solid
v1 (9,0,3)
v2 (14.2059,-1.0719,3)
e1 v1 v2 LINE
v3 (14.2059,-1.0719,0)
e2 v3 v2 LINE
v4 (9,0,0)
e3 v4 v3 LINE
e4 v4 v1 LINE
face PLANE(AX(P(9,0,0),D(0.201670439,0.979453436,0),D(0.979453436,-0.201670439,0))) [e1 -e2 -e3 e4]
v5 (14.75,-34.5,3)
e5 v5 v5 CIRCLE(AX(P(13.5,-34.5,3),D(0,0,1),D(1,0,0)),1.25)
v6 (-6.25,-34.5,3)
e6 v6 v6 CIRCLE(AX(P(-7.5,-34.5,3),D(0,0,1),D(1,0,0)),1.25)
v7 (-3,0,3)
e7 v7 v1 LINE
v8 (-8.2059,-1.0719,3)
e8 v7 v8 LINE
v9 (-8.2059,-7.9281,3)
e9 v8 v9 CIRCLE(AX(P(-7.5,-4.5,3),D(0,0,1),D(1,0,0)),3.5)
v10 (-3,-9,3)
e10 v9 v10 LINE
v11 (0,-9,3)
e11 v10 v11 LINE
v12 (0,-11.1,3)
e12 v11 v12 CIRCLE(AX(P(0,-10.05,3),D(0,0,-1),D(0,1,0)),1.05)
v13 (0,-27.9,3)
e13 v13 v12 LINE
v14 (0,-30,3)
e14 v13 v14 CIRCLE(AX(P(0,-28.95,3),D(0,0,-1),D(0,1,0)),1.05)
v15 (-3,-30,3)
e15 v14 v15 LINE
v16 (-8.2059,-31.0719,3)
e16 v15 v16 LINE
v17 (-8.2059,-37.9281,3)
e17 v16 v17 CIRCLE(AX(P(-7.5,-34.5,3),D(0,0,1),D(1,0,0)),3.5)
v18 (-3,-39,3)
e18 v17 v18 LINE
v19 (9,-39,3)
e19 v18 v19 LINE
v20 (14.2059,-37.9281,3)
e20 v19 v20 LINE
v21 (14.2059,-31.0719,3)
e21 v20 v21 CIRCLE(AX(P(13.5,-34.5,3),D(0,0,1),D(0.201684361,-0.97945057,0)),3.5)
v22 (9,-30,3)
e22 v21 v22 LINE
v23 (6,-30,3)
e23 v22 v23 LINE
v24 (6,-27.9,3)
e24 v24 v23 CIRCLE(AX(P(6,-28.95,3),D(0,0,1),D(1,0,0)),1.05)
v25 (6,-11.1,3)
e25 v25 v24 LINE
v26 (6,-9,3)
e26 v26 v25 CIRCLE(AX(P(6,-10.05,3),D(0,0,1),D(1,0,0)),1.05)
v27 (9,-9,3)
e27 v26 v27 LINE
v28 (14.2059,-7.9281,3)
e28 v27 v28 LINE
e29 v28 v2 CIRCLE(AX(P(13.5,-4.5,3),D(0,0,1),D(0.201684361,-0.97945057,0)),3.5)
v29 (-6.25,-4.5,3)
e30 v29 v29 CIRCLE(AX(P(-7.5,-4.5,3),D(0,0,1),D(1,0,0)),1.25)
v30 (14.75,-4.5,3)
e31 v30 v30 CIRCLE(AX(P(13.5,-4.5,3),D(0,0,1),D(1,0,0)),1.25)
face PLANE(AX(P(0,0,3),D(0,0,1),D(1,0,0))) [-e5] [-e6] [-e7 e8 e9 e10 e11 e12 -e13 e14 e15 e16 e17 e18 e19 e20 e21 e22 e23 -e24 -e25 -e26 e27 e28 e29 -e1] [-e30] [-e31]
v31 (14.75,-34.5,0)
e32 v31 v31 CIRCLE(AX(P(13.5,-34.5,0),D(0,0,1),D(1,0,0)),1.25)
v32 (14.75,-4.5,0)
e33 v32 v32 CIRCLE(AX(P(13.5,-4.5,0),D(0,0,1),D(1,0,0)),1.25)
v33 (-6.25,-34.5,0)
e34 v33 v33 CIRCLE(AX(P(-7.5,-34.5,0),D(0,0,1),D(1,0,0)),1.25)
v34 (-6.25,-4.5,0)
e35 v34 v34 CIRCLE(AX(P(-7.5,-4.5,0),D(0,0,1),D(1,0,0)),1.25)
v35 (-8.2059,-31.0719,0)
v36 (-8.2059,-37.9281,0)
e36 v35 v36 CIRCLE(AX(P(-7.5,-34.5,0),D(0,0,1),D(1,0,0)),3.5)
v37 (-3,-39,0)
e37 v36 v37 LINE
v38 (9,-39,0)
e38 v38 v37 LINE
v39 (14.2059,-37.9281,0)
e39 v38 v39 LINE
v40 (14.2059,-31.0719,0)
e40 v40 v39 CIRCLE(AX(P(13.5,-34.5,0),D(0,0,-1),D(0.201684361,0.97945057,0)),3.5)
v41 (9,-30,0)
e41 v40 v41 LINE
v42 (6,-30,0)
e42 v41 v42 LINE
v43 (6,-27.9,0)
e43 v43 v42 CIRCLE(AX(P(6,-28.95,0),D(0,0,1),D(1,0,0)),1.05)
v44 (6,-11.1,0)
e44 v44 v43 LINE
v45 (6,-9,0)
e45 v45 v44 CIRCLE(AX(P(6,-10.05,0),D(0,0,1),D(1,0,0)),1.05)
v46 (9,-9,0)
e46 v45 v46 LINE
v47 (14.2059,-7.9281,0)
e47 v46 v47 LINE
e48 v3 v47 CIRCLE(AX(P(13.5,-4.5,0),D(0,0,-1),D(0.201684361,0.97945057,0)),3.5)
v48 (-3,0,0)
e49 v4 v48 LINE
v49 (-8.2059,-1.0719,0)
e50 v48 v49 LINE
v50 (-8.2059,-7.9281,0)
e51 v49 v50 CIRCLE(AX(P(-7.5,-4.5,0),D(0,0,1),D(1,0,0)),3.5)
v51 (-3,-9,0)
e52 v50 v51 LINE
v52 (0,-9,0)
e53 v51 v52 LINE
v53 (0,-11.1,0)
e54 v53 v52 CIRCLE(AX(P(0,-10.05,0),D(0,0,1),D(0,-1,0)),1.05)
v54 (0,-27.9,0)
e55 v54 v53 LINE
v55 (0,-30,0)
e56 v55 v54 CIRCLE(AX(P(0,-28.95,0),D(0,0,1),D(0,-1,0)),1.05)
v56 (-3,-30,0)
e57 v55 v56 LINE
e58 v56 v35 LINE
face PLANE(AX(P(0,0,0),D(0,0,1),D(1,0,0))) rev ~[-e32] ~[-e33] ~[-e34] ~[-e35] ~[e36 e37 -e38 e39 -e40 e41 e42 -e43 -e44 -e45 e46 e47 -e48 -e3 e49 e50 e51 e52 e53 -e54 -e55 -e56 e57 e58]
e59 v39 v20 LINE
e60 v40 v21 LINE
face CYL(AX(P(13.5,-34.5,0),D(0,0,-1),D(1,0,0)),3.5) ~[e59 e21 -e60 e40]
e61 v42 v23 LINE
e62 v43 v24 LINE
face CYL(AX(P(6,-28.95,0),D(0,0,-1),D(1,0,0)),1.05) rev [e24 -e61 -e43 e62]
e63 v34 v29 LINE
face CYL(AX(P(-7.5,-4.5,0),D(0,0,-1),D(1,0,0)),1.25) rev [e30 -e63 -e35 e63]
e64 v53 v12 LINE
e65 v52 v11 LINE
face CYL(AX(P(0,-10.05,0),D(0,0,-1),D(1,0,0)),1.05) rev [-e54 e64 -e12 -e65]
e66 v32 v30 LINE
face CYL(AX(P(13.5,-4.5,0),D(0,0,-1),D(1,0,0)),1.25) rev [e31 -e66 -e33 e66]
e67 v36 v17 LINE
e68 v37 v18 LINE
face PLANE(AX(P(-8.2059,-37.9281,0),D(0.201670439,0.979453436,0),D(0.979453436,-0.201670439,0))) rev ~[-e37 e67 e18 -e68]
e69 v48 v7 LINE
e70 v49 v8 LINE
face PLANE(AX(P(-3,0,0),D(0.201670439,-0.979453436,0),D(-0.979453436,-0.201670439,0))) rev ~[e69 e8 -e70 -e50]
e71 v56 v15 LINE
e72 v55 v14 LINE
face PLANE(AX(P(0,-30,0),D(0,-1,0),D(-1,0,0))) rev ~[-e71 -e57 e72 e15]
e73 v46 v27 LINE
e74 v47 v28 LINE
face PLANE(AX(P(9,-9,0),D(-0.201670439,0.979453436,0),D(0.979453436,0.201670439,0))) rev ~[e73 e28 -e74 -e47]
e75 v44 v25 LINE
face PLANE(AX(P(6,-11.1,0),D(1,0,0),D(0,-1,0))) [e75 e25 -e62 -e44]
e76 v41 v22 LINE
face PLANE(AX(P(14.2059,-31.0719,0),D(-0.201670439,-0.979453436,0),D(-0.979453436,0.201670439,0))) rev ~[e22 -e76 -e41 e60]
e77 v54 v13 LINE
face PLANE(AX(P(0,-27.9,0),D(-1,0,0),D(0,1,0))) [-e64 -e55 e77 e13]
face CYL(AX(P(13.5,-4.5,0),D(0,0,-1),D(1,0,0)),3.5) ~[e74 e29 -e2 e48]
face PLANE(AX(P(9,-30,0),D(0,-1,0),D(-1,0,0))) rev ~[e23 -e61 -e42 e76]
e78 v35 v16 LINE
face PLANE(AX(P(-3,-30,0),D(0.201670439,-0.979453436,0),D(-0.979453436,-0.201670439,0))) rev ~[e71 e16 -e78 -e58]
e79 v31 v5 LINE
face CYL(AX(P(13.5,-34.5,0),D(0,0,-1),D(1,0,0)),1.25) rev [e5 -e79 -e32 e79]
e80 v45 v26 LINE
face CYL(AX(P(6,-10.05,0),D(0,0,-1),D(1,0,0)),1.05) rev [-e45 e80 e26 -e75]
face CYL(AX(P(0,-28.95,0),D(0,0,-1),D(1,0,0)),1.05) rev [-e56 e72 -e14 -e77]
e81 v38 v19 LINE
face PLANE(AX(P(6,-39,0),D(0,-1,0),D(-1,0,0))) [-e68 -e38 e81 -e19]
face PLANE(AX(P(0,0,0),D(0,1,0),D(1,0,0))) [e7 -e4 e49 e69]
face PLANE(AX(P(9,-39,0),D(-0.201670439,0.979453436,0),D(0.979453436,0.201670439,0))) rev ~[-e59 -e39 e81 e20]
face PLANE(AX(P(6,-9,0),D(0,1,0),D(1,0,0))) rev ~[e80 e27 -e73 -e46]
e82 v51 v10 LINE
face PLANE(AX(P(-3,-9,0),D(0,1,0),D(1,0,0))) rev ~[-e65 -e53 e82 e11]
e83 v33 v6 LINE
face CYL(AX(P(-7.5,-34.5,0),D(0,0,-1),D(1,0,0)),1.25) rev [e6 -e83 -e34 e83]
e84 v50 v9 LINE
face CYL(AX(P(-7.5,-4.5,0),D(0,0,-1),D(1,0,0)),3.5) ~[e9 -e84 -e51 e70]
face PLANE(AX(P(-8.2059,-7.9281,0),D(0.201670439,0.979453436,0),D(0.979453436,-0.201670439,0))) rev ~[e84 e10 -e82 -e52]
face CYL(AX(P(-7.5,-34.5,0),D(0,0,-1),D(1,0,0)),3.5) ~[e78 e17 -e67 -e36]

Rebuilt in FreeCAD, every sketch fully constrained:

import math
import FreeCAD as App
import Part
import Sketcher
from FreeCAD import Vector
Q = App.Units.Quantity

doc = App.newDocument("Part")
body = doc.addObject("PartDesign::Body", "Body")

# Sketch on XY plane
sketch1 = doc.addObject("Sketcher::SketchObject", "Sketch")
body.addObject(sketch1)
sketch1.AttachmentSupport = (doc.XY_Plane, [""])
sketch1.MapMode = "FlatFace"
sketch1.addGeometry([
    Part.LineSegment(Vector(-3, 0, 0), Vector(-8.2, -1.1, 0)),  # 0
    Part.ArcOfCircle(Part.Circle(Vector(-7.5, -4.5, 0), Vector(0, 0, 1), 3.5), math.radians(102), math.radians(258)),  # 1
    Part.LineSegment(Vector(-8.2, -7.9, 0), Vector(-3, -9, 0)),  # 2
    Part.LineSegment(Vector(-3, -9, 0), Vector(0, -9, 0)),  # 3
    Part.ArcOfCircle(Part.Circle(Vector(0, -10.1, 0), Vector(0, 0, 1), 1.1), math.radians(-90), math.radians(90)),  # 4
    Part.LineSegment(Vector(0, -11.1, 0), Vector(0, -27.9, 0)),  # 5
    Part.ArcOfCircle(Part.Circle(Vector(0, -28.9, 0), Vector(0, 0, 1), 1.1), math.radians(-90), math.radians(90)),  # 6
    Part.LineSegment(Vector(0, -30, 0), Vector(-3, -30, 0)),  # 7
    Part.LineSegment(Vector(-3, -30, 0), Vector(-8.2, -31.1, 0)),  # 8
    Part.ArcOfCircle(Part.Circle(Vector(-7.5, -34.5, 0), Vector(0, 0, 1), 3.5), math.radians(102), math.radians(258)),  # 9
    Part.LineSegment(Vector(-8.2, -37.9, 0), Vector(-3, -39, 0)),  # 10
    Part.LineSegment(Vector(-3, -39, 0), Vector(9, -39, 0)),  # 11
    Part.LineSegment(Vector(9, -39, 0), Vector(14.2, -37.9, 0)),  # 12
    Part.ArcOfCircle(Part.Circle(Vector(13.5, -34.5, 0), Vector(0, 0, 1), 3.5), math.radians(-78), math.radians(78)),  # 13
    Part.LineSegment(Vector(14.2, -31.1, 0), Vector(9, -30, 0)),  # 14
    Part.LineSegment(Vector(9, -30, 0), Vector(6, -30, 0)),  # 15
    Part.ArcOfCircle(Part.Circle(Vector(6, -28.9, 0), Vector(0, 0, 1), 1.1), math.radians(90), math.radians(270)),  # 16
    Part.LineSegment(Vector(6, -27.9, 0), Vector(6, -11.1, 0)),  # 17
    Part.ArcOfCircle(Part.Circle(Vector(6, -10.1, 0), Vector(0, 0, 1), 1.1), math.radians(90), math.radians(270)),  # 18
    Part.LineSegment(Vector(6, -9, 0), Vector(9, -9, 0)),  # 19
    Part.LineSegment(Vector(9, -9, 0), Vector(14.2, -7.9, 0)),  # 20
    Part.ArcOfCircle(Part.Circle(Vector(13.5, -4.5, 0), Vector(0, 0, 1), 3.5), math.radians(-78), math.radians(78)),  # 21
    Part.LineSegment(Vector(14.2, -1.1, 0), Vector(9, 0, 0)),  # 22
    Part.LineSegment(Vector(9, 0, 0), Vector(-3, 0, 0)),  # 23
    Part.Circle(Vector(13.5, -4.5, 0), Vector(0, 0, 1), 1.2),  # 24
    Part.Circle(Vector(13.5, -34.5, 0), Vector(0, 0, 1), 1.2),  # 25
    Part.Circle(Vector(-7.5, -34.5, 0), Vector(0, 0, 1), 1.2),  # 26
    Part.Circle(Vector(-7.5, -4.5, 0), Vector(0, 0, 1), 1.2),  # 27
], False)
sketch1.addConstraint([
    Sketcher.Constraint("Tangent", 0, 2, 1, 1),
    Sketcher.Constraint("Tangent", 1, 2, 2, 1),
    Sketcher.Constraint("Coincident", 2, 2, 3, 1),
    Sketcher.Constraint("Tangent", 3, 2, 4, 2),
    Sketcher.Constraint("Coincident", 4, 1, 5, 1),
    Sketcher.Constraint("Coincident", 5, 2, 6, 2),
    Sketcher.Constraint("Tangent", 6, 1, 7, 1),
    Sketcher.Constraint("Coincident", 7, 2, 8, 1),
    Sketcher.Constraint("Tangent", 8, 2, 9, 1),
    Sketcher.Constraint("Tangent", 9, 2, 10, 1),
    Sketcher.Constraint("Coincident", 10, 2, 11, 1),
    Sketcher.Constraint("Coincident", 11, 2, 12, 1),
    Sketcher.Constraint("Tangent", 12, 2, 13, 1),
    Sketcher.Constraint("Tangent", 13, 2, 14, 1),
    Sketcher.Constraint("Coincident", 14, 2, 15, 1),
    Sketcher.Constraint("Tangent", 15, 2, 16, 2),
    Sketcher.Constraint("Coincident", 16, 1, 17, 1),
    Sketcher.Constraint("Coincident", 17, 2, 18, 2),
    Sketcher.Constraint("Tangent", 18, 1, 19, 1),
    Sketcher.Constraint("Coincident", 19, 2, 20, 1),
    Sketcher.Constraint("Tangent", 20, 2, 21, 1),
    Sketcher.Constraint("Tangent", 21, 2, 22, 1),
    Sketcher.Constraint("Coincident", 22, 2, 23, 1),
    Sketcher.Constraint("Coincident", 23, 2, 0, 1),
    Sketcher.Constraint("Horizontal", 3),
    Sketcher.Constraint("Vertical", 5),
    Sketcher.Constraint("Horizontal", 7),
    Sketcher.Constraint("Horizontal", 11),
    Sketcher.Constraint("Horizontal", 15),
    Sketcher.Constraint("Vertical", 17),
    Sketcher.Constraint("Horizontal", 19),
    Sketcher.Constraint("Horizontal", 23),
    Sketcher.Constraint("Coincident", 24, 3, 21, 3),
    Sketcher.Constraint("Coincident", 25, 3, 13, 3),
    Sketcher.Constraint("Coincident", 26, 3, 9, 3),
    Sketcher.Constraint("Coincident", 27, 3, 1, 3),
    Sketcher.Constraint("Equal", 4, 6),
    Sketcher.Constraint("Equal", 1, 9),
    Sketcher.Constraint("Equal", 9, 13),
    Sketcher.Constraint("Equal", 6, 16),
    Sketcher.Constraint("Equal", 16, 18),
    Sketcher.Constraint("Equal", 13, 21),
    Sketcher.Constraint("Equal", 24, 25),
    Sketcher.Constraint("Equal", 25, 26),
    Sketcher.Constraint("Equal", 26, 27),
    Sketcher.Constraint("PointOnObject", 4, 3, -2),
    Sketcher.Constraint("PointOnObject", 6, 3, -2),
    Sketcher.Constraint("PointOnObject", 4, 1, -2),
    Sketcher.Constraint("PointOnObject", 22, 2, -1),
    Sketcher.Constraint("Parallel", 0, 8),
    Sketcher.Constraint("Parallel", 2, 10),
    Sketcher.Constraint("Parallel", 8, 12),
    Sketcher.Constraint("Parallel", 10, 14),
    Sketcher.Constraint("Parallel", 12, 20),
    Sketcher.Constraint("Parallel", 14, 22),
    Sketcher.Constraint("Horizontal", 9, 3, 13, 3),
    Sketcher.Constraint("Horizontal", 6, 3, 16, 3),
    Sketcher.Constraint("Horizontal", 4, 3, 18, 3),
    Sketcher.Constraint("Horizontal", 1, 3, 21, 3),
    Sketcher.Constraint("Horizontal", 9, 2, 12, 2),
    Sketcher.Constraint("Vertical", 1, 3, 9, 3),
    Sketcher.Constraint("Vertical", 16, 3, 18, 3),
    Sketcher.Constraint("Vertical", 13, 3, 21, 3),
    Sketcher.Constraint("Vertical", 2, 2, 7, 2),
    Sketcher.Constraint("Vertical", 7, 2, 10, 2),
    Sketcher.Constraint("Vertical", 15, 2, 16, 1),
    Sketcher.Constraint("Vertical", 19, 2, 22, 2),
    Sketcher.Constraint("Equal", 7, 15),
    Sketcher.Constraint("Diameter", 24, Q("2.5 mm")),
    Sketcher.Constraint("Radius", 1, Q("3.5 mm")),
    Sketcher.Constraint("DistanceX", 3, 1, 3, 2, Q("3 mm")),
    Sketcher.Constraint("Radius", 4, Q("1.05 mm")),
    Sketcher.Constraint("DistanceX", -1, 1, 16, 3, Q("6 mm")),
    Sketcher.Constraint("DistanceY", 10, 2, -1, 1, Q("39 mm")),
    Sketcher.Constraint("DistanceX", 1, 3, -1, 1, Q("7.5 mm")),
    Sketcher.Constraint("DistanceY", 1, 3, -1, 1, Q("4.5 mm")),
])
pad1 = doc.addObject("PartDesign::Pad", "Pad")
body.addObject(pad1)
pad1.Profile = sketch1
pad1.Length = 3

doc.recompute()
